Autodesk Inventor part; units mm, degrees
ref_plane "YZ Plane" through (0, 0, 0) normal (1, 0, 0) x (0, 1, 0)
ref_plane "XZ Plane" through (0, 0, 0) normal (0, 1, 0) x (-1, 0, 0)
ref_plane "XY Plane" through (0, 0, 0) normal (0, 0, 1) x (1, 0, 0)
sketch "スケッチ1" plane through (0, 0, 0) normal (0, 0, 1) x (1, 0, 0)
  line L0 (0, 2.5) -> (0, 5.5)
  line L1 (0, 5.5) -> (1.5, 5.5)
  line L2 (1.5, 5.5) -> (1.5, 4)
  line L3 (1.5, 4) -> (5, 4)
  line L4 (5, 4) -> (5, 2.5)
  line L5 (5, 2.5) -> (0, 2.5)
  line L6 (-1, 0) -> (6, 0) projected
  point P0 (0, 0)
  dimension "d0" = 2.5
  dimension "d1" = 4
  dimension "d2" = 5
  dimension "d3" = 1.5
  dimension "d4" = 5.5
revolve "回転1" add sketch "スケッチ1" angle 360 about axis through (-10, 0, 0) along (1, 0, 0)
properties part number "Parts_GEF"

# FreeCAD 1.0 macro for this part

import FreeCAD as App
import Part
import Sketcher
Q = App.Units.Quantity


def add_polygon(sketch, points):
    """Adds a closed chain of lines whose ends are joined by coincident constraints."""
    first, n = sketch.GeometryCount, len(points)
    for a, b in zip(points, points[1:] + points[:1]):
        sketch.addGeometry(Part.LineSegment(App.Vector(*a, 0), App.Vector(*b, 0)), False)
    for i in range(n):
        sketch.addConstraint(Sketcher.Constraint("Coincident", first + i, 2, first + (i + 1) % n, 1))

doc = App.newDocument("Part")
body = doc.addObject("PartDesign::Body", "Body")

sketch1 = doc.addObject("Sketcher::SketchObject", "Sketch")
body.addObject(sketch1)
sketch1.AttachmentSupport = (doc.XY_Plane, [""])
sketch1.MapMode = "FlatFace"
add_polygon(sketch1, [(0, 5.5), (0, 2.5), (5, 2.5), (5, 4), (1.5, 4), (1.5, 5.5)])
sketch1.addConstraint(Sketcher.Constraint("Vertical", 0))
sketch1.addConstraint(Sketcher.Constraint("Horizontal", 1))
sketch1.addConstraint(Sketcher.Constraint("Vertical", 2))
sketch1.addConstraint(Sketcher.Constraint("Horizontal", 3))
sketch1.addConstraint(Sketcher.Constraint("Vertical", 4))
sketch1.addConstraint(Sketcher.Constraint("Horizontal", 5))
sketch1.addConstraint(Sketcher.Constraint("PointOnObject", 0, 2, -2))
sketch1.addConstraint(Sketcher.Constraint("Equal", 5, 2))
sketch1.addConstraint(Sketcher.Constraint("Equal", 2, 4))
sketch1.addConstraint(Sketcher.Constraint("DistanceX", 1, 1, 1, 2, Q("5 mm")))
sketch1.addConstraint(Sketcher.Constraint("DistanceX", 5, 2, 5, 1, Q("1.5 mm")))
sketch1.addConstraint(Sketcher.Constraint("DistanceY", -1, 1, 2, 2, Q("4 mm")))
revolution = doc.addObject("PartDesign::Revolution", "Revolution")
body.addObject(revolution)
revolution.Profile = sketch1
revolution.ReferenceAxis = (sketch1, ["H_Axis"])
revolution.Angle = 360

doc.recompute()
